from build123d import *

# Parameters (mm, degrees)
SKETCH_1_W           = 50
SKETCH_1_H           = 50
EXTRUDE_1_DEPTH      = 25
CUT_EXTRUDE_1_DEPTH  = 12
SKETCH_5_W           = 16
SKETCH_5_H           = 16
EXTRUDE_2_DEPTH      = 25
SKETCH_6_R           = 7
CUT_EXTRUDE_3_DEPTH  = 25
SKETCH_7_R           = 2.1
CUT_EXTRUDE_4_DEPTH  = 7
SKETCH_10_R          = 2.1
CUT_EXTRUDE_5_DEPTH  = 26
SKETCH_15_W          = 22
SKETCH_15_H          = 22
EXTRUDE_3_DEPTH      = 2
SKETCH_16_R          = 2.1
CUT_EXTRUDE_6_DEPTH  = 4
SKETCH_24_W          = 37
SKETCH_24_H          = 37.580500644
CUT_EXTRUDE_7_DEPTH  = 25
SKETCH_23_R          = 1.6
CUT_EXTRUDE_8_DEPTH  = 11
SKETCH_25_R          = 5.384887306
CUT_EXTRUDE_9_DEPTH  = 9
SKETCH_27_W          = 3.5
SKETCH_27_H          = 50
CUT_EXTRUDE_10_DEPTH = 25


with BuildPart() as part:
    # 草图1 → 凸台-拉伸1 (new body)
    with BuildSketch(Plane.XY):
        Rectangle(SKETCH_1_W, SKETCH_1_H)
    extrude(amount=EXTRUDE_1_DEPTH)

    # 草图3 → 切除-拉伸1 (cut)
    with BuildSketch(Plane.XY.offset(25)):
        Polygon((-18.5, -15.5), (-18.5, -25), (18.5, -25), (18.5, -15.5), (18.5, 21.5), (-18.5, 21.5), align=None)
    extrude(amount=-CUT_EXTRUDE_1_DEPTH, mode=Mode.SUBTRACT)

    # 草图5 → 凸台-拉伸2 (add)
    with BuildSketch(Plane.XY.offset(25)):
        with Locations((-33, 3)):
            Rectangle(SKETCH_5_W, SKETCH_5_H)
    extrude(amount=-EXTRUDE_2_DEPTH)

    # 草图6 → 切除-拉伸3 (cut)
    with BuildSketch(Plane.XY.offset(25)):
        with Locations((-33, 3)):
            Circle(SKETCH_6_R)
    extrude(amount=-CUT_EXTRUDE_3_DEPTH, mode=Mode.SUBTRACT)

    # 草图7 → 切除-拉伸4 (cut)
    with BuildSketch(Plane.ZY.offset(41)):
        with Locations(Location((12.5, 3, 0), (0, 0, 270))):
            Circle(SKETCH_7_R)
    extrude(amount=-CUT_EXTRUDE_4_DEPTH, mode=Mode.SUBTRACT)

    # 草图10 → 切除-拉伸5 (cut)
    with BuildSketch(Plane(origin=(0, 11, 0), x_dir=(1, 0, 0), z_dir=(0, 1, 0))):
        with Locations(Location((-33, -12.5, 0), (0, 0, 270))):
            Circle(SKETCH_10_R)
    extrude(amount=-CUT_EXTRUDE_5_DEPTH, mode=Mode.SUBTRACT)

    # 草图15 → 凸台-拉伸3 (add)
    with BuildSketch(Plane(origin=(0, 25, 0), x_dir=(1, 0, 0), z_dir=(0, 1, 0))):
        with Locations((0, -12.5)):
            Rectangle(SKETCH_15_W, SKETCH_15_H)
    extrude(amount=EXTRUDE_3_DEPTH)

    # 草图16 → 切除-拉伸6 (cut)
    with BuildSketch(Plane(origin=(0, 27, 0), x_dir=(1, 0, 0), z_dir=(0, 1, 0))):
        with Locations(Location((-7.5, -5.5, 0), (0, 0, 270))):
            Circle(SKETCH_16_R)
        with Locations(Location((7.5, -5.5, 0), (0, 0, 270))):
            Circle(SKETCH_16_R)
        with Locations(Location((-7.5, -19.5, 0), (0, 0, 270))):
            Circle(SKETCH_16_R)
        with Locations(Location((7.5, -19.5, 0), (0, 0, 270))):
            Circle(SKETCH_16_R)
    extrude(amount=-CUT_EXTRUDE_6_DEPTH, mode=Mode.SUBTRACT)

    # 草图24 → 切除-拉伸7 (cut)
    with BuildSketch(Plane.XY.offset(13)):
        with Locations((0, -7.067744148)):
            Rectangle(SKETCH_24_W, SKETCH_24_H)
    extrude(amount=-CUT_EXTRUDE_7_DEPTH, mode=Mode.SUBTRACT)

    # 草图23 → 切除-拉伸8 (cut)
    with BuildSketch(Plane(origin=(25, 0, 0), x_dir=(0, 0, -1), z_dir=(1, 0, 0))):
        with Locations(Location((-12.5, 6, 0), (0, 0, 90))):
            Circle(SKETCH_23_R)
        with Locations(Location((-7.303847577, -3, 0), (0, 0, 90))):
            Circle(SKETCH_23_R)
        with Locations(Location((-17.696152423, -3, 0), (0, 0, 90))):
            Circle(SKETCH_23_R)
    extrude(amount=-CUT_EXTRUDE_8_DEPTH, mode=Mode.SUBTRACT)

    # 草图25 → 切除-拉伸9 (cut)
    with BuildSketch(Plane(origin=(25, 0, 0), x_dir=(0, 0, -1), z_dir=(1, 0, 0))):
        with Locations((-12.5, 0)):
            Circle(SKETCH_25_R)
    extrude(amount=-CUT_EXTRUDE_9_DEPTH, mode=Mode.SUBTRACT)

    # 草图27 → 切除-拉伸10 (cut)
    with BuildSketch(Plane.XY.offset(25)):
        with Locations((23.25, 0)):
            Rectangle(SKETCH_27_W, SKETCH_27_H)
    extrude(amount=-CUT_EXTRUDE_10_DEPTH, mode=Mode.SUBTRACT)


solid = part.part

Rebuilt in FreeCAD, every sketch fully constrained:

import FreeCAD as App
import Part
import Sketcher

V = App.Vector


def add_polygon(sketch, points):
    """Adds a closed chain of lines whose ends are joined by coincident constraints."""
    first, n = sketch.GeometryCount, len(points)
    for a, b in zip(points, points[1:] + points[:1]):
        sketch.addGeometry(Part.LineSegment(App.Vector(*a, 0), App.Vector(*b, 0)), False)
    for i in range(n):
        sketch.addConstraint(Sketcher.Constraint("Coincident", first + i, 2, first + (i + 1) % n, 1))

doc = App.newDocument("Part")
params = doc.addObject("Spreadsheet::Sheet", "Params")
for row, (alias, value) in enumerate([
    ("sketch1_width", "50 mm"),
    ("pad1_length", "25 mm"),
    ("sketch2_width", "37 mm"),
    ("sketch2_height", "46.5 mm"),
    ("pocket1_length", "12 mm"),
    ("sketch3_width", "16 mm"),
    ("pad2_length", "25 mm"),
    ("sketch4_diameter", "14 mm"),
    ("pocket2_length", "25 mm"),
    ("sketch5_diameter", "4.2 mm"),
    ("pocket3_length", "7 mm"),
    ("sketch6_diameter", "4.2 mm"),
    ("pocket4_length", "26 mm"),
    ("sketch7_width", "22 mm"),
    ("pad3_length", "2 mm"),
    ("sketch8_diameter", "4.2 mm"),
    ("pocket5_length", "4 mm"),
    ("sketch9_width", "37 mm"),
    ("pocket6_length", "25 mm"),
    ("sketch10_diameter", "3.2 mm"),
    ("pocket7_length", "11 mm"),
    ("pocket8_length", "9 mm"),
    ("sketch12_height", "50 mm"),
    ("sketch12_width", "3.5 mm"),
    ("pocket9_length", "25 mm"),
], start=1):
    params.set(f"A{row}", alias)
    params.set(f"B{row}", "=" + value)
    params.setAlias(f"B{row}", alias)

body = doc.addObject("PartDesign::Body", "Body")

sketch1 = doc.addObject("Sketcher::SketchObject", "Sketch")
body.addObject(sketch1)
sketch1.AttachmentSupport = (doc.XY_Plane, [""])
sketch1.MapMode = "FlatFace"
add_polygon(sketch1, [(-25, 25), (-25, -25), (25, -25), (25, 25)])
sketch1.addConstraint([
    Sketcher.Constraint("Vertical", 0),
    Sketcher.Constraint("Horizontal", 1),
    Sketcher.Constraint("Vertical", 2),
    Sketcher.Constraint("Horizontal", 3),
    Sketcher.Constraint("Symmetric", 0, 2, 2, 2, -1, 1),
    Sketcher.Constraint("Equal", 3, 0),
    Sketcher.Constraint("DistanceX", 1, 1, 1, 2, 50.0),
])
sketch1.setExpression("Constraints[10]", "Params.sketch1_width")
pad1 = doc.addObject("PartDesign::Pad", "Pad")
body.addObject(pad1)
pad1.Profile = sketch1
pad1.setExpression("Length", "Params.pad1_length")

sketch2 = doc.addObject("Sketcher::SketchObject", "Sketch001")
body.addObject(sketch2)
sketch2.AttachmentSupport = (doc.XY_Plane, [""])
sketch2.MapMode = "FlatFace"
sketch2.AttachmentOffset = App.Placement(V(0, 0, 25), App.Rotation())
add_polygon(sketch2, [(-18, -25), (18, -25), (18, 22), (-18, 22)])
sketch2.addConstraint([
    Sketcher.Constraint("Horizontal", 0),
    Sketcher.Constraint("Vertical", 1),
    Sketcher.Constraint("Horizontal", 2),
    Sketcher.Constraint("Vertical", 3),
    Sketcher.Constraint("DistanceX", 0, 1, 0, 2, 37.0),
    Sketcher.Constraint("DistanceY", 1, 1, 1, 2, 46.5),
    Sketcher.Constraint("DistanceY", 0, 2, -1, 1, 25.0),
    Sketcher.Constraint("DistanceX", -1, 1, 0, 2, 18.5),
])
sketch2.setExpression("Constraints[8]", "Params.sketch2_width")
sketch2.setExpression("Constraints[9]", "Params.sketch2_height")
pocket1 = doc.addObject("PartDesign::Pocket", "Pocket")
body.addObject(pocket1)
pocket1.Profile = sketch2
pocket1.setExpression("Length", "Params.pocket1_length")

sketch3 = doc.addObject("Sketcher::SketchObject", "Sketch002")
body.addObject(sketch3)
sketch3.AttachmentSupport = (doc.XY_Plane, [""])
sketch3.MapMode = "FlatFace"
sketch3.AttachmentOffset = App.Placement(V(0, 0, 25), App.Rotation())
add_polygon(sketch3, [(-41, 11), (-41, -5), (-25, -5), (-25, 11)])
sketch3.addConstraint([
    Sketcher.Constraint("Vertical", 0),
    Sketcher.Constraint("Horizontal", 1),
    Sketcher.Constraint("Vertical", 2),
    Sketcher.Constraint("Horizontal", 3),
    Sketcher.Constraint("Equal", 3, 0),
    Sketcher.Constraint("DistanceX", 1, 1, 1, 2, 16.0),
    Sketcher.Constraint("DistanceX", 0, 2, -1, 1, 41.0),
    Sketcher.Constraint("DistanceY", 0, 2, -1, 1, 5.0),
])
sketch3.setExpression("Constraints[9]", "Params.sketch3_width")
pad2 = doc.addObject("PartDesign::Pad", "Pad001")
body.addObject(pad2)
pad2.Profile = sketch3
pad2.setExpression("Length", "Params.pad2_length")
pad2.Reversed = True

sketch4 = doc.addObject("Sketcher::SketchObject", "Sketch003")
body.addObject(sketch4)
sketch4.AttachmentSupport = (doc.XY_Plane, [""])
sketch4.MapMode = "FlatFace"
sketch4.AttachmentOffset = App.Placement(V(0, 0, 25), App.Rotation())
sketch4.addGeometry(Part.Circle(V(-33, 3, 0), V(0, 0, 1), 7), False)
sketch4.addConstraint([
    Sketcher.Constraint("Diameter", 0, 14.0),
    Sketcher.Constraint("DistanceX", 0, 3, -1, 1, 33.0),
    Sketcher.Constraint("DistanceY", -1, 1, 0, 3, 3.0),
])
sketch4.setExpression("Constraints[0]", "Params.sketch4_diameter")
pocket2 = doc.addObject("PartDesign::Pocket", "Pocket001")
body.addObject(pocket2)
pocket2.Profile = sketch4
pocket2.setExpression("Length", "Params.pocket2_length")

sketch5 = doc.addObject("Sketcher::SketchObject", "Sketch004")
body.addObject(sketch5)
sketch5.AttachmentSupport = (doc.YZ_Plane, [""])
sketch5.MapMode = "FlatFace"
sketch5.AttachmentOffset = App.Placement(V(0, 0, -41), App.Rotation())
sketch5.addGeometry(Part.Circle(V(3, 12.5, 0), V(0, 0, 1), 2.1), False)
sketch5.addConstraint([
    Sketcher.Constraint("Diameter", 0, 4.2),
    Sketcher.Constraint("DistanceX", -1, 1, 0, 3, 3.0),
    Sketcher.Constraint("DistanceY", -1, 1, 0, 3, 12.5),
])
sketch5.setExpression("Constraints[0]", "Params.sketch5_diameter")
pocket3 = doc.addObject("PartDesign::Pocket", "Pocket002")
body.addObject(pocket3)
pocket3.Profile = sketch5
pocket3.setExpression("Length", "Params.pocket3_length")
pocket3.Reversed = True

sketch6 = doc.addObject("Sketcher::SketchObject", "Sketch005")
body.addObject(sketch6)
sketch6.AttachmentSupport = (doc.XZ_Plane, [""])
sketch6.MapMode = "FlatFace"
sketch6.AttachmentOffset = App.Placement(V(0, 0, -11), App.Rotation())
sketch6.addGeometry(Part.Circle(V(-33, 12.5, 0), V(0, 0, 1), 2.1), False)
sketch6.addConstraint([
    Sketcher.Constraint("Diameter", 0, 4.2),
    Sketcher.Constraint("DistanceX", 0, 3, -1, 1, 33.0),
    Sketcher.Constraint("DistanceY", -1, 1, 0, 3, 12.5),
])
sketch6.setExpression("Constraints[0]", "Params.sketch6_diameter")
pocket4 = doc.addObject("PartDesign::Pocket", "Pocket003")
body.addObject(pocket4)
pocket4.Profile = sketch6
pocket4.setExpression("Length", "Params.pocket4_length")
pocket4.Reversed = True

sketch7 = doc.addObject("Sketcher::SketchObject", "Sketch006")
body.addObject(sketch7)
sketch7.AttachmentSupport = (doc.XZ_Plane, [""])
sketch7.MapMode = "FlatFace"
sketch7.AttachmentOffset = App.Placement(V(0, 0, -25), App.Rotation())
add_polygon(sketch7, [(-11, 2), (-11, 24), (11, 24), (11, 2)])
sketch7.addConstraint([
    Sketcher.Constraint("Vertical", 0),
    Sketcher.Constraint("Horizontal", 1),
    Sketcher.Constraint("Vertical", 2),
    Sketcher.Constraint("Horizontal", 3),
    Sketcher.Constraint("Equal", 3, 0),
    Sketcher.Constraint("DistanceX", 1, 1, 1, 2, 22.0),
    Sketcher.Constraint("DistanceX", 0, 2, -1, 1, 11.0),
    Sketcher.Constraint("DistanceY", -1, 1, 0, 2, 23.5),
])
sketch7.setExpression("Constraints[9]", "Params.sketch7_width")
pad3 = doc.addObject("PartDesign::Pad", "Pad002")
body.addObject(pad3)
pad3.Profile = sketch7
pad3.setExpression("Length", "Params.pad3_length")
pad3.Reversed = True

sketch8 = doc.addObject("Sketcher::SketchObject", "Sketch007")
body.addObject(sketch8)
sketch8.AttachmentSupport = (doc.XZ_Plane, [""])
sketch8.MapMode = "FlatFace"
sketch8.AttachmentOffset = App.Placement(V(0, 0, -27), App.Rotation())
sketch8.addGeometry([
    Part.Circle(V(-7.5, 5.5, 0), V(0, 0, 1), 2.1),
    Part.Circle(V(7.5, 5.5, 0), V(0, 0, 1), 2.1),
    Part.Circle(V(-7.5, 19.5, 0), V(0, 0, 1), 2.1),
    Part.Circle(V(7.5, 19.5, 0), V(0, 0, 1), 2.1),
], False)
sketch8.addConstraint([
    Sketcher.Constraint("Equal", 0, 1),
    Sketcher.Constraint("Equal", 1, 2),
    Sketcher.Constraint("Equal", 2, 3),
    Sketcher.Constraint("Symmetric", 0, 3, 1, 3, -2),
    Sketcher.Constraint("Symmetric", 2, 3, 3, 3, -2),
    Sketcher.Constraint("Vertical", 0, 3, 2, 3),
    Sketcher.Constraint("Diameter", 0, 4.2),
    Sketcher.Constraint("DistanceX", 0, 3, 1, 3, 15.0),
    Sketcher.Constraint("DistanceY", 0, 3, 2, 3, 14.0),
    Sketcher.Constraint("DistanceY", -1, 1, 0, 3, 5.5),
])
sketch8.setExpression("Constraints[6]", "Params.sketch8_diameter")
pocket5 = doc.addObject("PartDesign::Pocket", "Pocket004")
body.addObject(pocket5)
pocket5.Profile = sketch8
pocket5.setExpression("Length", "Params.pocket5_length")
pocket5.Reversed = True

sketch9 = doc.addObject("Sketcher::SketchObject", "Sketch008")
body.addObject(sketch9)
sketch9.AttachmentSupport = (doc.XY_Plane, [""])
sketch9.MapMode = "FlatFace"
sketch9.AttachmentOffset = App.Placement(V(0, 0, 13), App.Rotation())
add_polygon(sketch9, [(-18, 12), (-18, -26), (18, -26), (18, 12)])
sketch9.addConstraint([
    Sketcher.Constraint("Vertical", 0),
    Sketcher.Constraint("Horizontal", 1),
    Sketcher.Constraint("Vertical", 2),
    Sketcher.Constraint("Horizontal", 3),
    Sketcher.Constraint("DistanceX", 1, 1, 1, 2, 37.0),
    Sketcher.Constraint("DistanceX", 0, 2, -1, 1, 18.5),
    Sketcher.Constraint("DistanceY", 0, 2, 0, 1, 37.580501),
    Sketcher.Constraint("DistanceY", 0, 2, -1, 1, 25.857994),
])
sketch9.setExpression("Constraints[8]", "Params.sketch9_width")
pocket6 = doc.addObject("PartDesign::Pocket", "Pocket005")
body.addObject(pocket6)
pocket6.Profile = sketch9
pocket6.setExpression("Length", "Params.pocket6_length")

sketch10 = doc.addObject("Sketcher::SketchObject", "Sketch009")
body.addObject(sketch10)
sketch10.AttachmentSupport = (doc.YZ_Plane, [""])
sketch10.MapMode = "FlatFace"
sketch10.AttachmentOffset = App.Placement(V(0, 0, 25), App.Rotation())
sketch10.addGeometry([
    Part.Circle(V(6, 12.5, 0), V(0, 0, 1), 1.6),
    Part.Circle(V(-3, 7.3, 0), V(0, 0, 1), 1.6),
    Part.Circle(V(-3, 17.7, 0), V(0, 0, 1), 1.6),
], False)
sketch10.addConstraint([
    Sketcher.Constraint("Equal", 0, 1),
    Sketcher.Constraint("Equal", 1, 2),
    Sketcher.Constraint("Vertical", 1, 3, 2, 3),
    Sketcher.Constraint("Diameter", 0, 3.2),
    Sketcher.Constraint("DistanceX", -1, 1, 0, 3, 6.0),
    Sketcher.Constraint("DistanceX", 1, 3, -1, 1, 3.0),
    Sketcher.Constraint("DistanceY", -1, 1, 0, 3, 12.5),
    Sketcher.Constraint("DistanceY", -1, 1, 1, 3, 7.303848),
    Sketcher.Constraint("DistanceY", -1, 1, 2, 3, 17.696152),
])
sketch10.setExpression("Constraints[3]", "Params.sketch10_diameter")
pocket7 = doc.addObject("PartDesign::Pocket", "Pocket006")
body.addObject(pocket7)
pocket7.Profile = sketch10
pocket7.setExpression("Length", "Params.pocket7_length")

sketch11 = doc.addObject("Sketcher::SketchObject", "Sketch010")
body.addObject(sketch11)
sketch11.AttachmentSupport = (doc.YZ_Plane, [""])
sketch11.MapMode = "FlatFace"
sketch11.AttachmentOffset = App.Placement(V(0, 0, 25), App.Rotation())
sketch11.addGeometry(Part.Circle(V(0, 12, 0), V(0, 0, 1), 5), False)
sketch11.addConstraint([
    Sketcher.Constraint("PointOnObject", 0, 3, -2),
    Sketcher.Constraint("DistanceY", -1, 1, 0, 3, 12.5),
    Sketcher.Constraint("Diameter", 0, 10.769775),
])
pocket8 = doc.addObject("PartDesign::Pocket", "Pocket007")
body.addObject(pocket8)
pocket8.Profile = sketch11
pocket8.setExpression("Length", "Params.pocket8_length")

sketch12 = doc.addObject("Sketcher::SketchObject", "Sketch011")
body.addObject(sketch12)
sketch12.AttachmentSupport = (doc.XY_Plane, [""])
sketch12.MapMode = "FlatFace"
sketch12.AttachmentOffset = App.Placement(V(0, 0, 25), App.Rotation())
add_polygon(sketch12, [(21.5, 25), (21.5, -25), (25, -25), (25, 25)])
sketch12.addConstraint([
    Sketcher.Constraint("Vertical", 0),
    Sketcher.Constraint("Horizontal", 1),
    Sketcher.Constraint("Vertical", 2),
    Sketcher.Constraint("Horizontal", 3),
    Sketcher.Constraint("DistanceY", 0, 2, 0, 1, 50.0),
    Sketcher.Constraint("DistanceX", 1, 1, 1, 2, 3.5),
    Sketcher.Constraint("DistanceY", 0, 2, -1, 1, 25.0),
    Sketcher.Constraint("DistanceX", -1, 1, 1, 2, 25.0),
])
sketch12.setExpression("Constraints[8]", "Params.sketch12_height")
sketch12.setExpression("Constraints[9]", "Params.sketch12_width")
pocket9 = doc.addObject("PartDesign::Pocket", "Pocket008")
body.addObject(pocket9)
pocket9.Profile = sketch12
pocket9.setExpression("Length", "Params.pocket9_length")

doc.recompute()
